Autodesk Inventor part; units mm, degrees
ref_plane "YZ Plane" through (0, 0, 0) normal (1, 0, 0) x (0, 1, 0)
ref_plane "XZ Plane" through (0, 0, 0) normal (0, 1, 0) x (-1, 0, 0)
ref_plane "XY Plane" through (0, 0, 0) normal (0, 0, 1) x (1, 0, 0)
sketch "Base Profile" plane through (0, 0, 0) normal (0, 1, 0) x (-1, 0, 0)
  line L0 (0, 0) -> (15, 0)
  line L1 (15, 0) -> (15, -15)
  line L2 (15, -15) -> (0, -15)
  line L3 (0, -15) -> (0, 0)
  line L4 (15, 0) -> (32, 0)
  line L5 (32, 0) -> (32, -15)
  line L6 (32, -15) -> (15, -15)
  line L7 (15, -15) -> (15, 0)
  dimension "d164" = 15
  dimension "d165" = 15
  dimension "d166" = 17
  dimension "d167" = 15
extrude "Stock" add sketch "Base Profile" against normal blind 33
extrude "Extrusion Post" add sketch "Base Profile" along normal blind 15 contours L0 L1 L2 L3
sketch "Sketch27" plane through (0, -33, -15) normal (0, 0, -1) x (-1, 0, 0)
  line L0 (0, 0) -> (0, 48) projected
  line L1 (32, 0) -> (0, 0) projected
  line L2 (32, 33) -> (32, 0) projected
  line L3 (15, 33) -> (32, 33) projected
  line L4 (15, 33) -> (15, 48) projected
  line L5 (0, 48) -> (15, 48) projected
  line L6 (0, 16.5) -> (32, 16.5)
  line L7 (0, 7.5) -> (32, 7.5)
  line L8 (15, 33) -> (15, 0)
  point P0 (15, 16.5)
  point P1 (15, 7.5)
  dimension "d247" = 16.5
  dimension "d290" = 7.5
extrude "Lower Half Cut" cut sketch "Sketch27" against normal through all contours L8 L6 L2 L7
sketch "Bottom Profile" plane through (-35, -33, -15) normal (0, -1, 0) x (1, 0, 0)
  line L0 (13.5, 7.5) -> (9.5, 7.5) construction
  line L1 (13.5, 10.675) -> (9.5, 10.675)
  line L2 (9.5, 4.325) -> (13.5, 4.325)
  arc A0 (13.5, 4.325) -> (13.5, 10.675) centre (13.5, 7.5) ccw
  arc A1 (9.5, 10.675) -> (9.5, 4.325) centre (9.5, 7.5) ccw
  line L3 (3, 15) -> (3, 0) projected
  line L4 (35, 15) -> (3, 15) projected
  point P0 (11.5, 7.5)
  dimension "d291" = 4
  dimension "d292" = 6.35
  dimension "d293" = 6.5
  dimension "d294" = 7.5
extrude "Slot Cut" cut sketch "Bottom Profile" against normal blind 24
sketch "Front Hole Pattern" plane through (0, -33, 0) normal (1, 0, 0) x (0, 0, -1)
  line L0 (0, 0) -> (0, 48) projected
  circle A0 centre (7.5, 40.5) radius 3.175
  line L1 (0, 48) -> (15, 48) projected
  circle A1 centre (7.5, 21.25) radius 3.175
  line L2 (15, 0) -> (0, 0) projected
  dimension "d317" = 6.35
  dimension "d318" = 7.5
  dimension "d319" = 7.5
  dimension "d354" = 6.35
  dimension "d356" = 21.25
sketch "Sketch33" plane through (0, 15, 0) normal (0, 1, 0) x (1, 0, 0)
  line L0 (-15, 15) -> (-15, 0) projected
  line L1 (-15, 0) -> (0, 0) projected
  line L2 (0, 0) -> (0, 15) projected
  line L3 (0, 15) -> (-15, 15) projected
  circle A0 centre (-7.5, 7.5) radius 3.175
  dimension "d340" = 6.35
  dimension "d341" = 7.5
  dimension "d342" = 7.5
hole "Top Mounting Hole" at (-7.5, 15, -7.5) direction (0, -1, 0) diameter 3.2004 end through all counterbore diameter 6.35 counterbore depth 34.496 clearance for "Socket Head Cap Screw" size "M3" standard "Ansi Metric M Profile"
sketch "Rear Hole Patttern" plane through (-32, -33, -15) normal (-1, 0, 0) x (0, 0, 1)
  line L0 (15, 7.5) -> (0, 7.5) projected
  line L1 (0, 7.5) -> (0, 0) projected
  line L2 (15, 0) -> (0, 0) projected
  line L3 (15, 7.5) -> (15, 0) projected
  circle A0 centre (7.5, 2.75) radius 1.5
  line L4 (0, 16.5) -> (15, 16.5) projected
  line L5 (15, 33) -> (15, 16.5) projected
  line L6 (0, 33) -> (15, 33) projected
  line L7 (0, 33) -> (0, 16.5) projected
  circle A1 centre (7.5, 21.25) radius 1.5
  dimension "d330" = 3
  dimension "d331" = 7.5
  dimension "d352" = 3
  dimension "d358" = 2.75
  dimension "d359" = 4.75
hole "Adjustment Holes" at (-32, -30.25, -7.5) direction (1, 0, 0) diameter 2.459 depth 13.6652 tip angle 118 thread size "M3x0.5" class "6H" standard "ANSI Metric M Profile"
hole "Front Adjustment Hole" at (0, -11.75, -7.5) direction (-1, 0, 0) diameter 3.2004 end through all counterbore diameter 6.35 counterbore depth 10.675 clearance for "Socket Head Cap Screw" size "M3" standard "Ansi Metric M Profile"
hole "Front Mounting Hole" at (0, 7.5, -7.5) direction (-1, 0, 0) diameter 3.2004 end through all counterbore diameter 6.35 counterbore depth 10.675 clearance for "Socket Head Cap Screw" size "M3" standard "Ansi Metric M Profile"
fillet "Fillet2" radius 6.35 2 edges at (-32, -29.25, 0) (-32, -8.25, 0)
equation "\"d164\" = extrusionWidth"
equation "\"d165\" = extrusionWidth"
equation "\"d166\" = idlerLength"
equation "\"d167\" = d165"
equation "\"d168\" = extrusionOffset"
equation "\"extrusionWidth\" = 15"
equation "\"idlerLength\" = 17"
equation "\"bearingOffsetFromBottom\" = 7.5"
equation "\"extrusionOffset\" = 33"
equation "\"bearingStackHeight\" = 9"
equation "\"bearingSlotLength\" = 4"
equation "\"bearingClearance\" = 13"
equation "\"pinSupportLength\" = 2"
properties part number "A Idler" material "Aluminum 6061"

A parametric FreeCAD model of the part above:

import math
import FreeCAD as App
import Part
import Sketcher

V = App.Vector


def edges_at(feature, points):
    """Names of the edges that pass closest to the given points."""
    edges = feature.Shape.Edges
    near = lambda p: min(range(len(edges)), key=lambda i: edges[i].distToShape(Part.Vertex(*p))[0])
    return sorted({f"Edge{near(p) + 1}" for p in points})

doc = App.newDocument("Part")
body = doc.addObject("PartDesign::Body", "Body")

# Sketch on XZ plane
sketch1 = body.newObject("Sketcher::SketchObject", "Sketch")
sketch1.AttachmentSupport = (doc.getObject("XZ_Plane"), [""])
sketch1.MapMode = "FlatFace"
sketch1.addGeometry([
    Part.LineSegment(V(0, 0, 0), V(0, -15, 0)),
    Part.LineSegment(V(0, -15, 0), V(-32, -15, 0)),
    Part.LineSegment(V(-32, -15, 0), V(-32, 0, 0)),
    Part.LineSegment(V(-32, 0, 0), V(0, 0, 0)),
], False)
sketch1.addConstraint([
    Sketcher.Constraint("Coincident", 0, 2, 1, 1),
    Sketcher.Constraint("Coincident", 1, 2, 2, 1),
    Sketcher.Constraint("Coincident", 2, 2, 3, 1),
    Sketcher.Constraint("Coincident", 3, 2, 0, 1),
    Sketcher.Constraint("Vertical", 0),
    Sketcher.Constraint("Horizontal", 1),
    Sketcher.Constraint("Vertical", 2),
    Sketcher.Constraint("Horizontal", 3),
    Sketcher.Constraint("Coincident", 3, 2, -1, 1),
    Sketcher.Constraint("DistanceY", 0, 2, 0, 1, 15.0),
    Sketcher.Constraint("DistanceX", 1, 2, 1, 1, 32.0),
])
pad1 = body.newObject("PartDesign::Pad", "Pad")
pad1.Profile = sketch1
pad1.Length = 33

# Sketch on XZ plane
sketch2 = body.newObject("Sketcher::SketchObject", "Sketch001")
sketch2.AttachmentSupport = (doc.getObject("XZ_Plane"), [""])
sketch2.MapMode = "FlatFace"
sketch2.addGeometry([
    Part.LineSegment(V(-15, 0, 0), V(0, 0, 0)),
    Part.LineSegment(V(0, 0, 0), V(0, -15, 0)),
    Part.LineSegment(V(0, -15, 0), V(-15, -15, 0)),
    Part.LineSegment(V(-15, -15, 0), V(-15, 0, 0)),
], False)
sketch2.addConstraint([
    Sketcher.Constraint("Coincident", 0, 2, 1, 1),
    Sketcher.Constraint("Coincident", 1, 2, 2, 1),
    Sketcher.Constraint("Coincident", 2, 2, 3, 1),
    Sketcher.Constraint("Coincident", 3, 2, 0, 1),
    Sketcher.Constraint("Horizontal", 0),
    Sketcher.Constraint("Vertical", 1),
    Sketcher.Constraint("Horizontal", 2),
    Sketcher.Constraint("Vertical", 3),
    Sketcher.Constraint("Coincident", 0, 2, -1, 1),
    Sketcher.Constraint("Equal", 2, 1),
    Sketcher.Constraint("DistanceX", 0, 1, 0, 2, 15.0),
])
pad2 = body.newObject("PartDesign::Pad", "Pad001")
pad2.Profile = sketch2
pad2.Length = 15
pad2.Reversed = True

# Sketch on XY plane
sketch3 = body.newObject("Sketcher::SketchObject", "Sketch002")
sketch3.AttachmentSupport = (doc.getObject("XY_Plane"), [""])
sketch3.MapMode = "FlatFace"
sketch3.AttachmentOffset = App.Placement(V(0, 0, -15), App.Rotation())
sketch3.addGeometry([
    Part.LineSegment(V(-15, -16, 0), V(-15, -26, 0)),
    Part.LineSegment(V(-15, -26, 0), V(-32, -26, 0)),
    Part.LineSegment(V(-32, -26, 0), V(-32, -16, 0)),
    Part.LineSegment(V(-32, -16, 0), V(-15, -16, 0)),
], False)
sketch3.addConstraint([
    Sketcher.Constraint("Coincident", 0, 2, 1, 1),
    Sketcher.Constraint("Coincident", 1, 2, 2, 1),
    Sketcher.Constraint("Coincident", 2, 2, 3, 1),
    Sketcher.Constraint("Coincident", 3, 2, 0, 1),
    Sketcher.Constraint("Vertical", 0),
    Sketcher.Constraint("Horizontal", 1),
    Sketcher.Constraint("Vertical", 2),
    Sketcher.Constraint("Horizontal", 3),
    Sketcher.Constraint("DistanceY", 2, 2, -1, 1, 16.5),
    Sketcher.Constraint("DistanceX", 1, 2, 1, 1, 17.0),
    Sketcher.Constraint("DistanceY", 0, 2, 0, 1, 9.0),
    Sketcher.Constraint("DistanceX", 0, 2, -1, 1, 15.0),
])
pocket1 = body.newObject("PartDesign::Pocket", "Pocket")
pocket1.Profile = sketch3
pocket1.Type = "ThroughAll"
pocket1.Reversed = True

# Sketch on XZ plane
sketch4 = body.newObject("Sketcher::SketchObject", "Sketch003")
sketch4.AttachmentSupport = (doc.getObject("XZ_Plane"), [""])
sketch4.MapMode = "FlatFace"
sketch4.AttachmentOffset = App.Placement(V(0, 0, 33), App.Rotation())
sketch4.addGeometry([
    Part.ArcOfCircle(Part.Circle(V(-21.5, -7.5, 0), V(0, 0, 1), 3.2), math.radians(-90), math.radians(90)),
    Part.LineSegment(V(-21.5, -4.3, 0), V(-25.5, -4.3, 0)),
    Part.ArcOfCircle(Part.Circle(V(-25.5, -7.5, 0), V(0, 0, 1), 3.2), math.radians(90), math.radians(270)),
    Part.LineSegment(V(-25.5, -10.7, 0), V(-21.5, -10.7, 0)),
], False)
sketch4.addConstraint([
    Sketcher.Constraint("Tangent", 0, 2, 1, 1),
    Sketcher.Constraint("Tangent", 1, 2, 2, 1),
    Sketcher.Constraint("Tangent", 2, 2, 3, 1),
    Sketcher.Constraint("Tangent", 3, 2, 0, 1),
    Sketcher.Constraint("Horizontal", 1),
    Sketcher.Constraint("Horizontal", 3),
    Sketcher.Constraint("DistanceX", 1, 2, 1, 1, 4.0),
    Sketcher.Constraint("Radius", 0, 3.175),
    Sketcher.Constraint("DistanceY", 0, 3, -1, 1, 7.5),
    Sketcher.Constraint("DistanceX", 0, 3, -1, 1, 21.5),
])
pocket2 = body.newObject("PartDesign::Pocket", "Pocket001")
pocket2.Profile = sketch4
pocket2.Length = 24

# Sketch on XZ plane
sketch5 = body.newObject("Sketcher::SketchObject", "Sketch004")
sketch5.AttachmentSupport = (doc.getObject("XZ_Plane"), [""])
sketch5.MapMode = "FlatFace"
sketch5.AttachmentOffset = App.Placement(V(0, 0, -15), App.Rotation())
sketch5.addGeometry(Part.Circle(V(-7.5, -7.5, 0), V(0, 0, 1), 1.6), False)
sketch5.addConstraint([
    Sketcher.Constraint("Diameter", 0, 3.2004),
    Sketcher.Constraint("DistanceX", 0, 3, -1, 1, 7.5),
    Sketcher.Constraint("DistanceY", 0, 3, -1, 1, 7.5),
])
doc.recompute()
hole = body.newObject("PartDesign::Hole", "Hole")
hole.Profile = sketch5
hole.ThreadType = "None"
hole.Diameter = 3.2004
hole.DepthType = "ThroughAll"
hole.HoleCutType = "Counterbore"
hole.HoleCutDiameter = 6.35
hole.HoleCutDepth = 34.496
hole.Reversed = True

# Sketch on YZ plane
sketch6 = body.newObject("Sketcher::SketchObject", "Sketch005")
sketch6.AttachmentSupport = (doc.getObject("YZ_Plane"), [""])
sketch6.MapMode = "FlatFace"
sketch6.AttachmentOffset = App.Placement(V(0, 0, -32), App.Rotation())
sketch6.addGeometry(Part.Circle(V(-30.2, -7.5, 0), V(0, 0, 1), 1.2), False)
sketch6.addConstraint([
    Sketcher.Constraint("Diameter", 0, 2.459),
    Sketcher.Constraint("DistanceY", 0, 3, -1, 1, 7.5),
    Sketcher.Constraint("DistanceX", 0, 3, -1, 1, 30.25),
])
doc.recompute()
hole2 = body.newObject("PartDesign::Hole", "Hole001")
hole2.Profile = sketch6
hole2.ThreadType = "None"
hole2.Diameter = 2.459
hole2.DepthType = "Dimension"
hole2.Depth = 13.6652
hole2.DrillPoint = "Angled"
hole2.DrillPointAngle = 118
hole2.Reversed = True

# Sketch on YZ plane
sketch7 = body.newObject("Sketcher::SketchObject", "Sketch006")
sketch7.AttachmentSupport = (doc.getObject("YZ_Plane"), [""])
sketch7.MapMode = "FlatFace"
sketch7.addGeometry(Part.Circle(V(-11.8, -7.5, 0), V(0, 0, 1), 1.6), False)
sketch7.addConstraint([
    Sketcher.Constraint("Diameter", 0, 3.2004),
    Sketcher.Constraint("DistanceY", 0, 3, -1, 1, 7.5),
    Sketcher.Constraint("DistanceX", 0, 3, -1, 1, 11.75),
])
doc.recompute()
hole3 = body.newObject("PartDesign::Hole", "Hole002")
hole3.Profile = sketch7
hole3.ThreadType = "None"
hole3.Diameter = 3.2004
hole3.DepthType = "ThroughAll"
hole3.HoleCutType = "Counterbore"
hole3.HoleCutDiameter = 6.35
hole3.HoleCutDepth = 10.675

# Sketch on YZ plane
sketch8 = body.newObject("Sketcher::SketchObject", "Sketch007")
sketch8.AttachmentSupport = (doc.getObject("YZ_Plane"), [""])
sketch8.MapMode = "FlatFace"
sketch8.addGeometry(Part.Circle(V(7.5, -7.5, 0), V(0, 0, 1), 1.6), False)
sketch8.addConstraint([
    Sketcher.Constraint("Diameter", 0, 3.2004),
    Sketcher.Constraint("DistanceX", -1, 1, 0, 3, 7.5),
    Sketcher.Constraint("DistanceY", 0, 3, -1, 1, 7.5),
])
doc.recompute()
hole4 = body.newObject("PartDesign::Hole", "Hole003")
hole4.Profile = sketch8
hole4.ThreadType = "None"
hole4.Diameter = 3.2004
hole4.DepthType = "ThroughAll"
hole4.HoleCutType = "Counterbore"
hole4.HoleCutDiameter = 6.35
hole4.HoleCutDepth = 10.675
doc.recompute()

fillet = body.newObject("PartDesign::Fillet", "Fillet")
fillet.Base = (hole4, edges_at(hole4, [(-32, -29.25, 0), (-32, -8.25, 0)]))
fillet.Radius = 6.35

doc.recompute()
